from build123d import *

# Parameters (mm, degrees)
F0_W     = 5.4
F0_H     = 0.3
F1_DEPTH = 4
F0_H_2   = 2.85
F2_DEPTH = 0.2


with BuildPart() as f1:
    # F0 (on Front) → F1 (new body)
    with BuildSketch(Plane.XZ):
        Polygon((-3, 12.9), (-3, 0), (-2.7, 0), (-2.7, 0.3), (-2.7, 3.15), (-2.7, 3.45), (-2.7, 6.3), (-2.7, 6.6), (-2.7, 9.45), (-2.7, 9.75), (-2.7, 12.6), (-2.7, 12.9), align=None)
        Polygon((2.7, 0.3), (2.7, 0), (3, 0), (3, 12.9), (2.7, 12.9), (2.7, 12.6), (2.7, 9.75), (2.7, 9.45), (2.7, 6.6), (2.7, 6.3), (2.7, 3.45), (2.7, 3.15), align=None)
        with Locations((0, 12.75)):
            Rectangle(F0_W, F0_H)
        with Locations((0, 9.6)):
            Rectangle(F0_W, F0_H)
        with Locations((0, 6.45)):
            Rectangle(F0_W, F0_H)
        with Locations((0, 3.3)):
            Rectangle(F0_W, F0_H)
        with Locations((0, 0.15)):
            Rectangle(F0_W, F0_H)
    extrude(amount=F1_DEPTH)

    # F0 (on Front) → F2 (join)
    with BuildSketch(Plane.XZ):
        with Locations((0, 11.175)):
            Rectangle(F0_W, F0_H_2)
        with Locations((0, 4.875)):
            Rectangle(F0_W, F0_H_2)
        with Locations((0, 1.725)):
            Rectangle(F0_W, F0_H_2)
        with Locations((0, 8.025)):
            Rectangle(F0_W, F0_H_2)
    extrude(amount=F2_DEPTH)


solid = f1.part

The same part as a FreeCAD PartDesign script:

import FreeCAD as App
import Part
import Sketcher


def add_polygon(sketch, points):
    """Adds a closed chain of lines whose ends are joined by coincident constraints."""
    first, n = sketch.GeometryCount, len(points)
    for a, b in zip(points, points[1:] + points[:1]):
        sketch.addGeometry(Part.LineSegment(App.Vector(*a, 0), App.Vector(*b, 0)), False)
    for i in range(n):
        sketch.addConstraint(Sketcher.Constraint("Coincident", first + i, 2, first + (i + 1) % n, 1))

doc = App.newDocument("Part")
params = doc.addObject("Spreadsheet::Sheet", "Params")
for row, (alias, value) in enumerate([
    ("sketch1_width", "6 mm"),
    ("sketch1_width2", "5.4 mm"),
    ("sketch1_height", "12.9 mm"),
    ("sketch1_height2", "2.85 mm"),
    ("pad1_length", "4 mm"),
    ("sketch2_width", "5.4 mm"),
    ("sketch2_height", "2.85 mm"),
    ("pad2_length", "0.2 mm"),
], start=1):
    params.set(f"A{row}", alias)
    params.set(f"B{row}", "=" + value)
    params.setAlias(f"B{row}", alias)

body = doc.addObject("PartDesign::Body", "Body")

sketch1 = body.newObject("Sketcher::SketchObject", "Sketch")
sketch1.AttachmentSupport = (doc.getObject("XZ_Plane"), [""])
sketch1.MapMode = "FlatFace"
add_polygon(sketch1, [(-3, 12.9), (-3, 0), (3, 0), (3, 12.9)])
add_polygon(sketch1, [(-2.7, 0.3), (-2.7, 3.1), (2.7, 3.1), (2.7, 0.3)])
add_polygon(sketch1, [(-2.7, 3.5), (-2.7, 6.3), (2.7, 6.3), (2.7, 3.5)])
add_polygon(sketch1, [(-2.7, 6.6), (-2.7, 9.4), (2.7, 9.4), (2.7, 6.6)])
add_polygon(sketch1, [(-2.7, 9.8), (-2.7, 12.6), (2.7, 12.6), (2.7, 9.8)])
sketch1.addConstraint([
    Sketcher.Constraint("Vertical", 0),
    Sketcher.Constraint("Horizontal", 1),
    Sketcher.Constraint("Vertical", 2),
    Sketcher.Constraint("Horizontal", 3),
    Sketcher.Constraint("Vertical", 4),
    Sketcher.Constraint("Horizontal", 5),
    Sketcher.Constraint("Vertical", 6),
    Sketcher.Constraint("Horizontal", 7),
    Sketcher.Constraint("Vertical", 8),
    Sketcher.Constraint("Horizontal", 9),
    Sketcher.Constraint("Vertical", 10),
    Sketcher.Constraint("Horizontal", 11),
    Sketcher.Constraint("Vertical", 12),
    Sketcher.Constraint("Horizontal", 13),
    Sketcher.Constraint("Vertical", 14),
    Sketcher.Constraint("Horizontal", 15),
    Sketcher.Constraint("Vertical", 16),
    Sketcher.Constraint("Horizontal", 17),
    Sketcher.Constraint("Vertical", 18),
    Sketcher.Constraint("Horizontal", 19),
    Sketcher.Constraint("Symmetric", 0, 2, 1, 2, -1, 1),
    Sketcher.Constraint("Vertical", 7, 2, 8, 2),
    Sketcher.Constraint("Vertical", 6, 2, 9, 2),
    Sketcher.Constraint("Vertical", 11, 2, 12, 2),
    Sketcher.Constraint("Vertical", 10, 2, 13, 2),
    Sketcher.Constraint("Vertical", 15, 2, 16, 2),
    Sketcher.Constraint("Vertical", 14, 2, 17, 2),
    Sketcher.Constraint("Equal", 6, 8),
    Sketcher.Constraint("Equal", 10, 12),
    Sketcher.Constraint("Equal", 14, 16),
    Sketcher.Constraint("DistanceX", 1, 1, 1, 2, 6.0),
    Sketcher.Constraint("DistanceX", 5, 1, 5, 2, 5.4),
    Sketcher.Constraint("DistanceY", 0, 2, 0, 1, 12.9),
    Sketcher.Constraint("DistanceY", 7, 2, 8, 2, 6.0),
    Sketcher.Constraint("DistanceY", 11, 2, 12, 2, 6.0),
    Sketcher.Constraint("DistanceY", 15, 2, 16, 2, 6.0),
    Sketcher.Constraint("DistanceY", 4, 1, 4, 2, 2.85),
    Sketcher.Constraint("DistanceX", 4, 2, -1, 1, 2.7),
    Sketcher.Constraint("DistanceY", -1, 1, 6, 2, 0.3),
])
sketch1.setExpression("Constraints[50]", "Params.sketch1_width")
sketch1.setExpression("Constraints[51]", "Params.sketch1_width2")
sketch1.setExpression("Constraints[52]", "Params.sketch1_height")
sketch1.setExpression("Constraints[56]", "Params.sketch1_height2")
pad1 = body.newObject("PartDesign::Pad", "Pad")
pad1.Profile = sketch1
pad1.setExpression("Length", "Params.pad1_length")

sketch2 = body.newObject("Sketcher::SketchObject", "Sketch001")
sketch2.AttachmentSupport = (doc.getObject("XZ_Plane"), [""])
sketch2.MapMode = "FlatFace"
add_polygon(sketch2, [(-2.7, 12.6), (-2.7, 9.8), (2.7, 9.8), (2.7, 12.6)])
add_polygon(sketch2, [(-2.7, 6.3), (-2.7, 3.5), (2.7, 3.5), (2.7, 6.3)])
add_polygon(sketch2, [(-2.7, 3.1), (-2.7, 0.3), (2.7, 0.3), (2.7, 3.1)])
add_polygon(sketch2, [(-2.7, 9.4), (-2.7, 6.6), (2.7, 6.6), (2.7, 9.4)])
sketch2.addConstraint([
    Sketcher.Constraint("Vertical", 0),
    Sketcher.Constraint("Horizontal", 1),
    Sketcher.Constraint("Vertical", 2),
    Sketcher.Constraint("Horizontal", 3),
    Sketcher.Constraint("Vertical", 4),
    Sketcher.Constraint("Horizontal", 5),
    Sketcher.Constraint("Vertical", 6),
    Sketcher.Constraint("Horizontal", 7),
    Sketcher.Constraint("Vertical", 8),
    Sketcher.Constraint("Horizontal", 9),
    Sketcher.Constraint("Vertical", 10),
    Sketcher.Constraint("Horizontal", 11),
    Sketcher.Constraint("Vertical", 12),
    Sketcher.Constraint("Horizontal", 13),
    Sketcher.Constraint("Vertical", 14),
    Sketcher.Constraint("Horizontal", 15),
    Sketcher.Constraint("Vertical", 3, 2, 4, 2),
    Sketcher.Constraint("Vertical", 2, 2, 5, 2),
    Sketcher.Constraint("Vertical", 7, 2, 8, 2),
    Sketcher.Constraint("Vertical", 6, 2, 9, 2),
    Sketcher.Constraint("Vertical", 11, 2, 12, 2),
    Sketcher.Constraint("Vertical", 10, 2, 13, 2),
    Sketcher.Constraint("Equal", 2, 4),
    Sketcher.Constraint("Equal", 6, 8),
    Sketcher.Constraint("Equal", 10, 12),
    Sketcher.Constraint("DistanceX", 1, 1, 1, 2, 5.4),
    Sketcher.Constraint("DistanceY", 8, 2, 7, 2, 6.0),
    Sketcher.Constraint("DistanceY", 0, 2, 0, 1, 2.85),
    Sketcher.Constraint("DistanceX", 0, 2, -1, 1, 2.7),
    Sketcher.Constraint("DistanceY", -1, 1, 2, 2, 12.6),
    Sketcher.Constraint("DistanceY", -1, 1, 6, 2, 6.3),
    Sketcher.Constraint("DistanceY", -1, 1, 12, 2, 6.6),
])
sketch2.setExpression("Constraints[41]", "Params.sketch2_width")
sketch2.setExpression("Constraints[43]", "Params.sketch2_height")
pad2 = body.newObject("PartDesign::Pad", "Pad001")
pad2.Profile = sketch2
pad2.setExpression("Length", "Params.pad2_length")

doc.recompute()
